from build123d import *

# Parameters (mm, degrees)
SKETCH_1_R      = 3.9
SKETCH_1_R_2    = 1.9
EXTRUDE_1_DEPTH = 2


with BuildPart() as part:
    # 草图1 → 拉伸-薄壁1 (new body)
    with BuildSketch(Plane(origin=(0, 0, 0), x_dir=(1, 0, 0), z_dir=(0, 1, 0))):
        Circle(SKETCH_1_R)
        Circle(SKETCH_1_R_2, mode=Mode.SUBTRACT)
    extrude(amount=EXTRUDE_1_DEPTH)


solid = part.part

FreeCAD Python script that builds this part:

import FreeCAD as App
import Part
import Sketcher

V = App.Vector

doc = App.newDocument("Part")
params = doc.addObject("Spreadsheet::Sheet", "Params")
for row, (alias, value) in enumerate([
    ("sketch1_diameter", "7.8 mm"),
    ("sketch1_diameter2", "3.8 mm"),
    ("pad1_length", "2 mm"),
], start=1):
    params.set(f"A{row}", alias)
    params.set(f"B{row}", "=" + value)
    params.setAlias(f"B{row}", alias)

body = doc.addObject("PartDesign::Body", "Body")

# Sketch on XZ plane
sketch1 = body.newObject("Sketcher::SketchObject", "Sketch")
sketch1.AttachmentSupport = (doc.getObject("XZ_Plane"), [""])
sketch1.MapMode = "FlatFace"
sketch1.addGeometry([
    Part.Circle(V(0, 0, 0), V(0, 0, 1), 3.9),
    Part.Circle(V(0, 0, 0), V(0, 0, 1), 1.9),
], False)
sketch1.addConstraint([
    Sketcher.Constraint("Coincident", 0, 3, -1, 1),
    Sketcher.Constraint("Coincident", 1, 3, -1, 1),
    Sketcher.Constraint("Diameter", 0, 7.8),
    Sketcher.Constraint("Diameter", 1, 3.8),
])
sketch1.setExpression("Constraints[2]", "Params.sketch1_diameter")
sketch1.setExpression("Constraints[3]", "Params.sketch1_diameter2")
pad1 = body.newObject("PartDesign::Pad", "Pad")
pad1.Profile = sketch1
pad1.setExpression("Length", "Params.pad1_length")
pad1.Reversed = True

doc.recompute()
